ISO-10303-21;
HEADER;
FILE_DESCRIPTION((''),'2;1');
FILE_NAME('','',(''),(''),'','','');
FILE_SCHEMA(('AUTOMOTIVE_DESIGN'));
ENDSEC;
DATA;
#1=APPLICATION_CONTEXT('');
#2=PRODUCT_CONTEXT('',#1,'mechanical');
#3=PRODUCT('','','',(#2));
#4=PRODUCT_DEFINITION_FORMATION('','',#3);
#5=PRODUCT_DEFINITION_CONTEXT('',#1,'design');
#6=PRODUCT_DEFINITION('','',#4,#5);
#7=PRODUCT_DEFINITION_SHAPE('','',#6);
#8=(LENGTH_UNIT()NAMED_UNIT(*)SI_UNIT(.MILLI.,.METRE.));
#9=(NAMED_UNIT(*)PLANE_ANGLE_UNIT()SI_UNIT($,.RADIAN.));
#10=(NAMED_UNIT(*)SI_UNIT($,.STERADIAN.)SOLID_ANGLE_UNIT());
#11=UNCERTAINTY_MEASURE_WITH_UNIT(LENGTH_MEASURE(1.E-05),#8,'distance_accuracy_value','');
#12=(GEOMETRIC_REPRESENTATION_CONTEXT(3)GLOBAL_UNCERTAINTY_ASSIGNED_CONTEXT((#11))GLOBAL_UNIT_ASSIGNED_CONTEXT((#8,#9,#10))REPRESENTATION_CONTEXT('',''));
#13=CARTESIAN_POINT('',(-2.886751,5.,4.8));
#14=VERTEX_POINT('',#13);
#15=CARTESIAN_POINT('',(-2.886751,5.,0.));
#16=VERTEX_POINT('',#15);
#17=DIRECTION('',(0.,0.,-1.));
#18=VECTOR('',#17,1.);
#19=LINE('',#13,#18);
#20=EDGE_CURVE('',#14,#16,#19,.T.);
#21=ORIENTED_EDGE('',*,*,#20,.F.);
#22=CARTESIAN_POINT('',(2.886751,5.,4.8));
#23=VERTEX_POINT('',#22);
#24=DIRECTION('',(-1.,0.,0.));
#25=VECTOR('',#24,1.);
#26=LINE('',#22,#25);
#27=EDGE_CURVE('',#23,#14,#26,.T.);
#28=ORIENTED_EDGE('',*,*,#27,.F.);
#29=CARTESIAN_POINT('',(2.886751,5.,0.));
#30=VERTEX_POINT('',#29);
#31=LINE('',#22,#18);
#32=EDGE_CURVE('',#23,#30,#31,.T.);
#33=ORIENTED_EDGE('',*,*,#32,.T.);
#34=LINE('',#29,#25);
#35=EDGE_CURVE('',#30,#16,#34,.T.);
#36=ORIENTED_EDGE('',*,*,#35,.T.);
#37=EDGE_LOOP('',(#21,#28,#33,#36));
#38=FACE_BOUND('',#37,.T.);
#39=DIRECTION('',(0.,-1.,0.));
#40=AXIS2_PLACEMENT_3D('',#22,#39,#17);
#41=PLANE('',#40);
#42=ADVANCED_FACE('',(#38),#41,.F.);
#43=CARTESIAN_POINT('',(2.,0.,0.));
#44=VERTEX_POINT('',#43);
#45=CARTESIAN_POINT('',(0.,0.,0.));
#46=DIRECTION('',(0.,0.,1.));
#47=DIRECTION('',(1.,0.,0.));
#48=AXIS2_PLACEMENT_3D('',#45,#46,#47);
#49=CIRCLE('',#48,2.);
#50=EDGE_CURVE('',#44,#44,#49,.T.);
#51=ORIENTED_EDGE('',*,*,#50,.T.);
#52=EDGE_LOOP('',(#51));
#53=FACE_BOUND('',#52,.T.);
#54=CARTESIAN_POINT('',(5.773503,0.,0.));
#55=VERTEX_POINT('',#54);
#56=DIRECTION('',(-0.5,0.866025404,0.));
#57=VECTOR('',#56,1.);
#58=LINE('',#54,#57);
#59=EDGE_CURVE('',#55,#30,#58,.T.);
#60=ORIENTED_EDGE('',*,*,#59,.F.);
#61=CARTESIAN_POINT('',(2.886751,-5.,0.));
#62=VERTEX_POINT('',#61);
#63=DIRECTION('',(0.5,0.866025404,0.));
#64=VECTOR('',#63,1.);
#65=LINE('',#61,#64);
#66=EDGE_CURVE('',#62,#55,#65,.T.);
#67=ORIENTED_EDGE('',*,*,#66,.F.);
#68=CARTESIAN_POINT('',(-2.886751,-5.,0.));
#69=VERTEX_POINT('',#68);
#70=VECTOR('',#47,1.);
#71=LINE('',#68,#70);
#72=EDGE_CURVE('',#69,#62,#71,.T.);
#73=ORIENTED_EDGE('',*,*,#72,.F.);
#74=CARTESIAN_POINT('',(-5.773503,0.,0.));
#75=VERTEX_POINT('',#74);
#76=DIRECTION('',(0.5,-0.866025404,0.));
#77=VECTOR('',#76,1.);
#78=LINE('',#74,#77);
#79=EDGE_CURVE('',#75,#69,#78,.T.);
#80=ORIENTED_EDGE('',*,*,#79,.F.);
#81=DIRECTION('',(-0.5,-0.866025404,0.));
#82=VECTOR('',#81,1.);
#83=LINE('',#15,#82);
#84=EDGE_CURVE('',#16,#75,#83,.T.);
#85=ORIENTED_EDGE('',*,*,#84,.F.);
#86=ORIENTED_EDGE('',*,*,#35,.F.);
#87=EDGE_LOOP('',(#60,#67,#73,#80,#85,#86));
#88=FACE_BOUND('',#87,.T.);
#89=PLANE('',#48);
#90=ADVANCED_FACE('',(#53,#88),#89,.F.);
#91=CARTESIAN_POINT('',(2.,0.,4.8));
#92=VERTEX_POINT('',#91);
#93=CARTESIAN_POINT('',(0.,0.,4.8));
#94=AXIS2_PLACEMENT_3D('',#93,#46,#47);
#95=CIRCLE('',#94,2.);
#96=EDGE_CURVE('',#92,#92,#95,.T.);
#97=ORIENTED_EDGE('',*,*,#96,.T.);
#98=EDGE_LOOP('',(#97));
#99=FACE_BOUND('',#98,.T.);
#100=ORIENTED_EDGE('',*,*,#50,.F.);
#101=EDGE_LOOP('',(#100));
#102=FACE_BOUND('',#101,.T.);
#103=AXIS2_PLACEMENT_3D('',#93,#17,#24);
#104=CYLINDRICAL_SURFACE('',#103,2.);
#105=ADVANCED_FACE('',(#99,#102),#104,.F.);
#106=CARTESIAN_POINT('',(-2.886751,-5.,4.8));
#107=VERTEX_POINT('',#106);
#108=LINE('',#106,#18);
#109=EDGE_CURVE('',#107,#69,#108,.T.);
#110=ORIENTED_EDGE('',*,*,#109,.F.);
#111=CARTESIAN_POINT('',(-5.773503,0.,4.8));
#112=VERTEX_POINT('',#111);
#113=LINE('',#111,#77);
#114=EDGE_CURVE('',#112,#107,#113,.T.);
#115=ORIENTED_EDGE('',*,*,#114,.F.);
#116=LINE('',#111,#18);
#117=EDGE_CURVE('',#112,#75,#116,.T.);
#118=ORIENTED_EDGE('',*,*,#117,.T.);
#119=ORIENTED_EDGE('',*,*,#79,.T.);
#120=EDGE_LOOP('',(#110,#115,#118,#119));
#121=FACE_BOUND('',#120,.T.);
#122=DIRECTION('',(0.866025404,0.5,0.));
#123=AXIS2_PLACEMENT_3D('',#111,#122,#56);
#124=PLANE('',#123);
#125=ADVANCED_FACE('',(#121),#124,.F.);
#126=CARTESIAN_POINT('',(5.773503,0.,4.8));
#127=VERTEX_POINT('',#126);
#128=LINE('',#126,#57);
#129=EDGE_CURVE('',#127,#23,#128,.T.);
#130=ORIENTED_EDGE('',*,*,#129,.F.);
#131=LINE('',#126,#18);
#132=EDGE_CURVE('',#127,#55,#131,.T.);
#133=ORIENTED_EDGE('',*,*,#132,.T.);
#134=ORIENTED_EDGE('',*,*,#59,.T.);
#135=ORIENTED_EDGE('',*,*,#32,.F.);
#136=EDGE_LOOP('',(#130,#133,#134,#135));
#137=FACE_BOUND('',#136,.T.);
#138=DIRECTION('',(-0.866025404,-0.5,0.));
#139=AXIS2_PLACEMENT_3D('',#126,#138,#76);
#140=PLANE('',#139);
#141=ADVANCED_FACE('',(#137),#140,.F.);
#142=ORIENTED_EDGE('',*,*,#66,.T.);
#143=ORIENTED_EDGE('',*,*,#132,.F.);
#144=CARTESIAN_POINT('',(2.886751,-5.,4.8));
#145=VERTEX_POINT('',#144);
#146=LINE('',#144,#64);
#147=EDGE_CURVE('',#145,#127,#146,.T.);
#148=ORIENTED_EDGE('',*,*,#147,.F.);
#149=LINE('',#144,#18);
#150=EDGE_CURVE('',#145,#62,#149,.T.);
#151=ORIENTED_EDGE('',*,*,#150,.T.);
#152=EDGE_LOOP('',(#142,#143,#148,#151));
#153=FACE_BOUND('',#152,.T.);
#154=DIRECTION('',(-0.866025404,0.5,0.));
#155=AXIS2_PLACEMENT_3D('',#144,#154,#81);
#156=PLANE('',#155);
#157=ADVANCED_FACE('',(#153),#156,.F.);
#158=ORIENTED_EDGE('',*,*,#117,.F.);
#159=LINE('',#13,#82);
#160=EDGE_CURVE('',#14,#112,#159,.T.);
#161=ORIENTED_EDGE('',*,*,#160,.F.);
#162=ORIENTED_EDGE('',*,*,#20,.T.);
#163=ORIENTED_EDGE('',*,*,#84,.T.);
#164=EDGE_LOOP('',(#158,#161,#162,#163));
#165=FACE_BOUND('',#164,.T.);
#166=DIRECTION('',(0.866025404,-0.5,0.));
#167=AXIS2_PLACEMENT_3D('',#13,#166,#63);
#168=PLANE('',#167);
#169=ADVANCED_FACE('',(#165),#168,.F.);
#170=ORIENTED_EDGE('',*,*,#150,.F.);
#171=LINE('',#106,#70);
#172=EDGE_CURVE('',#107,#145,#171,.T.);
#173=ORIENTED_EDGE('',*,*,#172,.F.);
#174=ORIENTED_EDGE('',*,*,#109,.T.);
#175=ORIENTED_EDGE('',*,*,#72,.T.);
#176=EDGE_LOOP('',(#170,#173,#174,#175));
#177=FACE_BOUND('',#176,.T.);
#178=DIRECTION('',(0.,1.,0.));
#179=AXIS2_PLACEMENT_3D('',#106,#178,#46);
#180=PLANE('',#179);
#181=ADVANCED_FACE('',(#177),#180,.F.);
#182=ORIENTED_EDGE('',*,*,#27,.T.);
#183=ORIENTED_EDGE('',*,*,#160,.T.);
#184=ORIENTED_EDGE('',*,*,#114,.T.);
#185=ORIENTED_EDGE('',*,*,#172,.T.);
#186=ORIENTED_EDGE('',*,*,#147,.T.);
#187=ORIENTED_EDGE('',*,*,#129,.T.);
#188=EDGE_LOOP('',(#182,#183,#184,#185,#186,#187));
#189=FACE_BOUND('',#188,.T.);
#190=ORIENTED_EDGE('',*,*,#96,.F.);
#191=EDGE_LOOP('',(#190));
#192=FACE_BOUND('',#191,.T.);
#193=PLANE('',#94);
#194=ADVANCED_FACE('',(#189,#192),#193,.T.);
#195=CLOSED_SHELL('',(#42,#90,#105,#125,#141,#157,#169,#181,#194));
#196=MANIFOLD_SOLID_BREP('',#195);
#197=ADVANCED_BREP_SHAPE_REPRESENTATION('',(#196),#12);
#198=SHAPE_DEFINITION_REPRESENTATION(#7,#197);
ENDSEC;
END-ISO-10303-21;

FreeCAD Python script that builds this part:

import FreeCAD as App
import Part
import Sketcher
Q = App.Units.Quantity


def add_polygon(sketch, points):
    """Adds a closed chain of lines whose ends are joined by coincident constraints."""
    first, n = sketch.GeometryCount, len(points)
    for a, b in zip(points, points[1:] + points[:1]):
        sketch.addGeometry(Part.LineSegment(App.Vector(*a, 0), App.Vector(*b, 0)), False)
    for i in range(n):
        sketch.addConstraint(Sketcher.Constraint("Coincident", first + i, 2, first + (i + 1) % n, 1))

doc = App.newDocument("Part")
body = doc.addObject("PartDesign::Body", "Body")

# Sketch on XY plane
sketch1 = body.newObject("Sketcher::SketchObject", "Sketch")
sketch1.AttachmentSupport = (doc.getObject("XY_Plane"), [""])
sketch1.MapMode = "FlatFace"
add_polygon(sketch1, [(2.9, -5), (5.8, 0), (2.9, 5), (-2.9, 5), (-5.8, 0), (-2.9, -5)])  # lines 0-5
sketch1.addGeometry(Part.Circle(App.Vector(0, 0, 0), App.Vector(0, 0, 1), 2), False)  # 6
sketch1.addConstraint(Sketcher.Constraint("Horizontal", 2))
sketch1.addConstraint(Sketcher.Constraint("Horizontal", 5))
sketch1.addConstraint(Sketcher.Constraint("Coincident", 6, 3, -1, 1))
sketch1.addConstraint(Sketcher.Constraint("Symmetric", 0, 2, 3, 2, -1, 1))
sketch1.addConstraint(Sketcher.Constraint("Symmetric", 1, 2, 4, 2, -1, 1))
sketch1.addConstraint(Sketcher.Constraint("PointOnObject", 0, 2, -1))
sketch1.addConstraint(Sketcher.Constraint("Parallel", 0, 3))
sketch1.addConstraint(Sketcher.Constraint("Vertical", 2, 2, 4, 2))
sketch1.addConstraint(Sketcher.Constraint("Diameter", 6, 4.0))
sketch1.addConstraint(Sketcher.Constraint("Angle", 0, Q("60 deg")))
sketch1.addConstraint(Sketcher.Constraint("DistanceY", -1, 1, 1, 2, 5.0))
sketch1.addConstraint(Sketcher.Constraint("DistanceX", 2, 2, 2, 1, 5.773503))
pad1 = body.newObject("PartDesign::Pad", "Pad")
pad1.Profile = sketch1
pad1.Length = 4.8

doc.recompute()
